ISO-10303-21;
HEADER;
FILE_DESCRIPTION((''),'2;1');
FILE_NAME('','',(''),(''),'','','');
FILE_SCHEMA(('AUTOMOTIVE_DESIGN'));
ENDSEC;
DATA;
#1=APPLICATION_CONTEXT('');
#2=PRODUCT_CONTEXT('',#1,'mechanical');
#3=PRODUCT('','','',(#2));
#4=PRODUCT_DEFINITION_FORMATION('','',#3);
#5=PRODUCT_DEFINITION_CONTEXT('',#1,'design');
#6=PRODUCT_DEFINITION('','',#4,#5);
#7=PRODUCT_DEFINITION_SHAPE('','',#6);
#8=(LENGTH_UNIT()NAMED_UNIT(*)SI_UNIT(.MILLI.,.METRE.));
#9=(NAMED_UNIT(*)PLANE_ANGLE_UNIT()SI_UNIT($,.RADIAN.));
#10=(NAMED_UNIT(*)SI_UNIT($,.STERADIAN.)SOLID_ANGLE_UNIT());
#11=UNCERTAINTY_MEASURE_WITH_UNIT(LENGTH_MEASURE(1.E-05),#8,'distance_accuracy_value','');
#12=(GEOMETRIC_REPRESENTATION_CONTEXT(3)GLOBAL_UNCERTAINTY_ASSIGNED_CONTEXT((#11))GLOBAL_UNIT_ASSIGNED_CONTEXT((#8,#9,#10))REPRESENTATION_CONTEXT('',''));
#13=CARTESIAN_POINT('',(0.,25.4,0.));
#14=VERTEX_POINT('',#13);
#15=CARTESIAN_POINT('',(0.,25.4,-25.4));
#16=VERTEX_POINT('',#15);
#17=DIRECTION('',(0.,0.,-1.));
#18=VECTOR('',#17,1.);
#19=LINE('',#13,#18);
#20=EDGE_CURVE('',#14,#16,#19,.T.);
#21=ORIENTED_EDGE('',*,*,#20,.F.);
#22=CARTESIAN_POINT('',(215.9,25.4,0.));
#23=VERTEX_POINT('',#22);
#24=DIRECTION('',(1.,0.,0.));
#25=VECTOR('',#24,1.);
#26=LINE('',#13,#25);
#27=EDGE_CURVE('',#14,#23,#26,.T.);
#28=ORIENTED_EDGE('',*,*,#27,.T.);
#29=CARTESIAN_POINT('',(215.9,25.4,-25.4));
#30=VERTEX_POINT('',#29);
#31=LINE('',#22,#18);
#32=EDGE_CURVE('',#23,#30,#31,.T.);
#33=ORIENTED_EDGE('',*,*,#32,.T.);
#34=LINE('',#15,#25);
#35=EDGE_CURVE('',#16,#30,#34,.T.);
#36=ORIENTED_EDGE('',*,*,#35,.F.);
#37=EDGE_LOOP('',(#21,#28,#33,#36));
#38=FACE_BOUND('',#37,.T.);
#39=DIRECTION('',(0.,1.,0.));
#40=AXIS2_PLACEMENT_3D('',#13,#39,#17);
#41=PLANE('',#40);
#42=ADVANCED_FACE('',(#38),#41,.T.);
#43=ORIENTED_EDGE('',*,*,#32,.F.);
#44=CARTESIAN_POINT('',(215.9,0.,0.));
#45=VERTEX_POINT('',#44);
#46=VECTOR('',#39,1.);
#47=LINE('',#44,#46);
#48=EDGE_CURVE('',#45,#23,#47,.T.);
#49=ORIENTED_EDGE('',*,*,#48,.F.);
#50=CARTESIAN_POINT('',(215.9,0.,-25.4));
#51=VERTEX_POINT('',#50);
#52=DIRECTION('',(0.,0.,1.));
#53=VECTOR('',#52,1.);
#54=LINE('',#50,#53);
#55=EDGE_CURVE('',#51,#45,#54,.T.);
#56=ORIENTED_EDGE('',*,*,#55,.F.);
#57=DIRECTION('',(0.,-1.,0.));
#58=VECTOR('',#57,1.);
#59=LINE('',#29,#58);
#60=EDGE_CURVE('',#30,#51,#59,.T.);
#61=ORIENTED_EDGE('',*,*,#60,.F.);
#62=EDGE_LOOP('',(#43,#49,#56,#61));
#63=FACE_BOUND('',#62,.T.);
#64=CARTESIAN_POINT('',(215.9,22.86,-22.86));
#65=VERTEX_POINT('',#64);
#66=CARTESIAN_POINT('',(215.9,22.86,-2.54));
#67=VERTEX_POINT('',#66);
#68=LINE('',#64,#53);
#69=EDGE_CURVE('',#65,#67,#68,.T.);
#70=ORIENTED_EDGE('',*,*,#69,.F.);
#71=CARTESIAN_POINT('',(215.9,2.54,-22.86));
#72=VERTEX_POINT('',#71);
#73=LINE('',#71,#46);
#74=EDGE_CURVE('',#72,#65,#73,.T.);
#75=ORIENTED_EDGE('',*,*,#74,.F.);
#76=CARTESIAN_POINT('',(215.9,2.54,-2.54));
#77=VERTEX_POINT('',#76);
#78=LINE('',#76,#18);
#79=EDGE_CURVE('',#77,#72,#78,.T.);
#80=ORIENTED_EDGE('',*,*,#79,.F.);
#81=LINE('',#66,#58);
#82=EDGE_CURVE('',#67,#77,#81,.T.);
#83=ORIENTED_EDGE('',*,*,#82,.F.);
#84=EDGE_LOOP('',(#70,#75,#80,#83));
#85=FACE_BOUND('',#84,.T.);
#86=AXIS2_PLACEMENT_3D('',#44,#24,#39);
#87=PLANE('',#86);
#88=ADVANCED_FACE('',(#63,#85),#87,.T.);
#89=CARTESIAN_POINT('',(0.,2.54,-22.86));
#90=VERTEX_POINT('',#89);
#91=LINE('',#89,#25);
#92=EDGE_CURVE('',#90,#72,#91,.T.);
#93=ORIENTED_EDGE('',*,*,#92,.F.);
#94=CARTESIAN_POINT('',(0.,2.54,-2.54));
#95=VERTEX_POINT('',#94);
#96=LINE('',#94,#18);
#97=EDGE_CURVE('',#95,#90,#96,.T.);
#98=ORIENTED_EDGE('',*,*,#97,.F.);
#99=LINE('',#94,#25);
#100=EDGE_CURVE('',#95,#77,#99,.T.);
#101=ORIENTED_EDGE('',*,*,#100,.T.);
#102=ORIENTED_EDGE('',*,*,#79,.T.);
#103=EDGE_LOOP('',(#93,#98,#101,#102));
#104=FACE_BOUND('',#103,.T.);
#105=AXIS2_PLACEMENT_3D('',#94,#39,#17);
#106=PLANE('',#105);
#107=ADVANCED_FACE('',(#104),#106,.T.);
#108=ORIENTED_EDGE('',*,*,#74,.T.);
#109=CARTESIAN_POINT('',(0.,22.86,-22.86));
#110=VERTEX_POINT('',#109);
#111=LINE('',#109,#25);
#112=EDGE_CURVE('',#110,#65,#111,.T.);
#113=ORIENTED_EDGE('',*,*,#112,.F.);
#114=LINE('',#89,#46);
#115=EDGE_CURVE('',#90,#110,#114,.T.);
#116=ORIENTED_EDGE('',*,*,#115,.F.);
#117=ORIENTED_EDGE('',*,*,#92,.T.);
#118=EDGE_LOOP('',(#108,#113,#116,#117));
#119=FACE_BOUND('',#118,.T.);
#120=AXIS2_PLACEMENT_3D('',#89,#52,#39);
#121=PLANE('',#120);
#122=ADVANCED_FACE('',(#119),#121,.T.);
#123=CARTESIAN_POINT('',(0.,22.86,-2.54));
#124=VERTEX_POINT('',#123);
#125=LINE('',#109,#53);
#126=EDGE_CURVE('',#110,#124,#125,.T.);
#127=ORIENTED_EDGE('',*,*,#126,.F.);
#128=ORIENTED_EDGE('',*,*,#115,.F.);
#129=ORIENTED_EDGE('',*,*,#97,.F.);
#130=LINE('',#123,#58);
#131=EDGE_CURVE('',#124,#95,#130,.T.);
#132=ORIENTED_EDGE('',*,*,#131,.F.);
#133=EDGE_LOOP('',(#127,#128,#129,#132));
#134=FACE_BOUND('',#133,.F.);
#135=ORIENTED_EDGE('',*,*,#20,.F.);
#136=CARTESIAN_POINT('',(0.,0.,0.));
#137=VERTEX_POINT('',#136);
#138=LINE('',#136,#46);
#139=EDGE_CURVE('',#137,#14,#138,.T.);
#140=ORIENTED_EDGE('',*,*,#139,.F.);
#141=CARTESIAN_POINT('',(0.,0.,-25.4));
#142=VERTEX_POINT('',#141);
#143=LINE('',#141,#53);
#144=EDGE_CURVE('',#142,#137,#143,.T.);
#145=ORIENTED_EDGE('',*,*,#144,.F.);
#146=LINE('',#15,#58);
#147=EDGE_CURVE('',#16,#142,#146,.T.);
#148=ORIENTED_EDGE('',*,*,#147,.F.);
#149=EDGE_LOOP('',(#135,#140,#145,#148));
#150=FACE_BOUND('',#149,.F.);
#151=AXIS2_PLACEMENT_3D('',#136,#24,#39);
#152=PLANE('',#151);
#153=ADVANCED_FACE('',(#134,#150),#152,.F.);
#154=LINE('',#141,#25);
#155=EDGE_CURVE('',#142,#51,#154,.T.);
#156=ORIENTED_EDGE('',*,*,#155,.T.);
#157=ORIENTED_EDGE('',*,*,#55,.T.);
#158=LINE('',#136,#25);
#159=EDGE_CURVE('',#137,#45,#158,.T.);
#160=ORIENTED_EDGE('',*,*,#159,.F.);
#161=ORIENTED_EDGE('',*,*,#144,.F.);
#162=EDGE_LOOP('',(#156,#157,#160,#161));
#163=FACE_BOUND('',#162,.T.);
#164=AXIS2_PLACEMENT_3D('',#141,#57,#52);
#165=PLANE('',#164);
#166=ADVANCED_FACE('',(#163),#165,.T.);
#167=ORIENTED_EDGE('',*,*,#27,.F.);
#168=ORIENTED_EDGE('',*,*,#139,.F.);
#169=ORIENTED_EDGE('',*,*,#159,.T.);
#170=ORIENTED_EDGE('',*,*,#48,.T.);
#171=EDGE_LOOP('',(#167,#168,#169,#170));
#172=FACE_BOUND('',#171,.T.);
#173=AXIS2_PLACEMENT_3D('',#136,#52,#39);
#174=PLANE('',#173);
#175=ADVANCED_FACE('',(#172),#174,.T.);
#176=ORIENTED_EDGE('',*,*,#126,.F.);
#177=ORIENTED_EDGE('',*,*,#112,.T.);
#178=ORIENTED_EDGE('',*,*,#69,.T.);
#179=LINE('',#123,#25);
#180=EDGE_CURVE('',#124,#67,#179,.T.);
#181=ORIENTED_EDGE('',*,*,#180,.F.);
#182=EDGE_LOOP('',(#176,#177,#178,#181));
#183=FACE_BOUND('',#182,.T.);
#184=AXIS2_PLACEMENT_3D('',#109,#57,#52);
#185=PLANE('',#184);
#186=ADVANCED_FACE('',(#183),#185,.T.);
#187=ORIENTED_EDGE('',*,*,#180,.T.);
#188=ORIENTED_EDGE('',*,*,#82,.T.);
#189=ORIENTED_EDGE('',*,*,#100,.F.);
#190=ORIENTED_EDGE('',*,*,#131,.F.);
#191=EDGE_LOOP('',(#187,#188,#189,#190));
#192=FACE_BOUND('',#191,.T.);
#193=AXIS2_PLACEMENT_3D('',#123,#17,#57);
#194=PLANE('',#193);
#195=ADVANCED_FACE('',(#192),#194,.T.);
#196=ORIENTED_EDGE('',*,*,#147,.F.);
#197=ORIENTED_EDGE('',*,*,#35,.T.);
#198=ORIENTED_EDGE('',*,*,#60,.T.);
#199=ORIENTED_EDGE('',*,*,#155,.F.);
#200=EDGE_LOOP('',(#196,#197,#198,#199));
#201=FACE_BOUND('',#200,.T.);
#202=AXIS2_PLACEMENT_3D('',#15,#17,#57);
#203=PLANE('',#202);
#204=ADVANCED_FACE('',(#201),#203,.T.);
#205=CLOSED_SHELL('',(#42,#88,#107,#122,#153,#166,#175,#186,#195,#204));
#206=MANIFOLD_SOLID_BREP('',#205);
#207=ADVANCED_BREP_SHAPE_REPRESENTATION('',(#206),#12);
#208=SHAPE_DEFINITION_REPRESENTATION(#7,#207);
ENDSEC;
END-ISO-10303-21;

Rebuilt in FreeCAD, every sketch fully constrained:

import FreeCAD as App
import Part
import Sketcher
from FreeCAD import Vector
Q = App.Units.Quantity

doc = App.newDocument("Part")
body = doc.addObject("PartDesign::Body", "Body")

sketch1 = doc.addObject("Sketcher::SketchObject", "Sketch")
body.addObject(sketch1)
sketch1.AttachmentSupport = (doc.YZ_Plane, [""])
sketch1.MapMode = "FlatFace"
sketch1.addGeometry([
    Part.LineSegment(Vector(25, 0, 0), Vector(0, 0, 0)),
    Part.LineSegment(Vector(0, 0, 0), Vector(0, -25, 0)),
    Part.LineSegment(Vector(0, -25, 0), Vector(25, -25, 0)),
    Part.LineSegment(Vector(25, -25, 0), Vector(25, 0, 0)),
    Part.LineSegment(Vector(23, -3, 0), Vector(23, -23, 0)),
    Part.LineSegment(Vector(23, -23, 0), Vector(3, -23, 0)),
    Part.LineSegment(Vector(3, -23, 0), Vector(3, -3, 0)),
    Part.LineSegment(Vector(3, -3, 0), Vector(23, -3, 0)),
], False)
sketch1.addConstraint([
    Sketcher.Constraint("Coincident", 0, 2, 1, 1),
    Sketcher.Constraint("Coincident", 1, 2, 2, 1),
    Sketcher.Constraint("Coincident", 2, 2, 3, 1),
    Sketcher.Constraint("Coincident", 3, 2, 0, 1),
    Sketcher.Constraint("Coincident", 4, 2, 5, 1),
    Sketcher.Constraint("Coincident", 5, 2, 6, 1),
    Sketcher.Constraint("Coincident", 6, 2, 7, 1),
    Sketcher.Constraint("Coincident", 7, 2, 4, 1),
    Sketcher.Constraint("Horizontal", 0),
    Sketcher.Constraint("Vertical", 1),
    Sketcher.Constraint("Horizontal", 2),
    Sketcher.Constraint("Vertical", 3),
    Sketcher.Constraint("Vertical", 4),
    Sketcher.Constraint("Horizontal", 5),
    Sketcher.Constraint("Vertical", 6),
    Sketcher.Constraint("Horizontal", 7),
    Sketcher.Constraint("Coincident", 0, 2, -1, 1),
    Sketcher.Constraint("Equal", 2, 1),
    Sketcher.Constraint("Equal", 7, 4),
    Sketcher.Constraint("DistanceX", 0, 2, 0, 1, Q("1 in")),
    Sketcher.Constraint("DistanceX", -1, 1, 5, 2, Q("0.1 in")),
    Sketcher.Constraint("DistanceY", 6, 2, -1, 1, Q("0.1 in")),
    Sketcher.Constraint("DistanceX", 4, 2, 2, 2, Q("0.1 in")),
])
pad1 = doc.addObject("PartDesign::Pad", "Pad")
body.addObject(pad1)
pad1.Profile = sketch1
pad1.Length = Q("8.5 in")

doc.recompute()
